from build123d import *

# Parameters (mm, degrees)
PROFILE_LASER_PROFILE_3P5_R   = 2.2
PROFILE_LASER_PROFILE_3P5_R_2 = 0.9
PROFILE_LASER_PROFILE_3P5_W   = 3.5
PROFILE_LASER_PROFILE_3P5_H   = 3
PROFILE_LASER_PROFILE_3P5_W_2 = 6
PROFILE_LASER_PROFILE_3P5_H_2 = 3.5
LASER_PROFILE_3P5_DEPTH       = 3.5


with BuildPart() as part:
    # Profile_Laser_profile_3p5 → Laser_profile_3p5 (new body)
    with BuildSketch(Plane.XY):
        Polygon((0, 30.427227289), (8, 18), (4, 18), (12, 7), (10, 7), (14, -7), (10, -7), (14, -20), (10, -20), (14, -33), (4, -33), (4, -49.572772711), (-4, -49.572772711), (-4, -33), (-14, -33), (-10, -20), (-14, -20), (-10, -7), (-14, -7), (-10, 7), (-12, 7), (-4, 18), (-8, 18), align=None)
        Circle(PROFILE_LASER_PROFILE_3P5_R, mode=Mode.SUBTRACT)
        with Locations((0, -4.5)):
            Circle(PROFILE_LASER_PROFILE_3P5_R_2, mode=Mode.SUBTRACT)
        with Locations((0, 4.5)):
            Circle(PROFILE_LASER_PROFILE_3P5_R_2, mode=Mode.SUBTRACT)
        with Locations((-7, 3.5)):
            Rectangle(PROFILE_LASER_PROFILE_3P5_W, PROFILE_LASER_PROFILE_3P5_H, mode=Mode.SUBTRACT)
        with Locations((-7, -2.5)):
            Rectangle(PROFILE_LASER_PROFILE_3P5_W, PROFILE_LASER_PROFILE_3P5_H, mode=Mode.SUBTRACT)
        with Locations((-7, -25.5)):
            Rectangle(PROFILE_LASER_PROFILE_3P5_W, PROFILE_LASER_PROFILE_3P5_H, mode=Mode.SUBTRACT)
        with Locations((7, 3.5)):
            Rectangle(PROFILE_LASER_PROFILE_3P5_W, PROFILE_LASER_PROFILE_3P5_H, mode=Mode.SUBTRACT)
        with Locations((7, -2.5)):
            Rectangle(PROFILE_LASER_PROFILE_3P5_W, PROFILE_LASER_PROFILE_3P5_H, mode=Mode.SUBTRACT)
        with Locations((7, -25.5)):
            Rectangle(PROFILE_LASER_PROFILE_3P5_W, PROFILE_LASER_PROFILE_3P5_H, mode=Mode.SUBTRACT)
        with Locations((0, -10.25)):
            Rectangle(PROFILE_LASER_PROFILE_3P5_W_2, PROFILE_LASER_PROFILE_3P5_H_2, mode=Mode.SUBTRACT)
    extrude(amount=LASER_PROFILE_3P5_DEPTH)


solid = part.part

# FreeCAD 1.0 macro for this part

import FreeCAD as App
import Part
import Sketcher
Q = App.Units.Quantity


def add_polygon(sketch, points):
    """Adds a closed chain of lines whose ends are joined by coincident constraints."""
    first, n = sketch.GeometryCount, len(points)
    for a, b in zip(points, points[1:] + points[:1]):
        sketch.addGeometry(Part.LineSegment(App.Vector(*a, 0), App.Vector(*b, 0)), False)
    for i in range(n):
        sketch.addConstraint(Sketcher.Constraint("Coincident", first + i, 2, first + (i + 1) % n, 1))

doc = App.newDocument("Part")
body = doc.addObject("PartDesign::Body", "Body")

# Sketch on XY plane
sketch1 = doc.addObject("Sketcher::SketchObject", "Sketch")
body.addObject(sketch1)
sketch1.AttachmentSupport = (doc.XY_Plane, [""])
sketch1.MapMode = "FlatFace"
add_polygon(sketch1, [(8, 18), (0, 30.4), (-8, 18), (-4, 18), (-12, 7), (-10, 7), (-14, -7), (-10, -7), (-14, -20), (-10, -20), (-14, -33), (-4, -33), (-4, -49.6), (4, -49.6), (4, -33), (14, -33), (10, -20), (14, -20), (10, -7), (14, -7), (10, 7), (12, 7), (4, 18)])  # lines 0-22
add_polygon(sketch1, [(5.2, -27), (5.2, -24), (8.8, -24), (8.8, -27)])  # lines 23-26
add_polygon(sketch1, [(-8.8, -27), (-8.8, -24), (-5.2, -24), (-5.2, -27)])  # lines 27-30
add_polygon(sketch1, [(5.2, -4), (5.2, -1), (8.8, -1), (8.8, -4)])  # lines 31-34
add_polygon(sketch1, [(5.2, 2), (5.2, 5), (8.8, 5), (8.8, 2)])  # lines 35-38
add_polygon(sketch1, [(-3, -12), (-3, -8.5), (3, -8.5), (3, -12)])  # lines 39-42
sketch1.addGeometry(Part.Circle(App.Vector(0, -4.5, 0), App.Vector(0, 0, 1), 0.9), False)  # 43
sketch1.addGeometry(Part.Circle(App.Vector(0, 0, 0), App.Vector(0, 0, 1), 2.2), False)  # 44
sketch1.addGeometry(Part.Circle(App.Vector(0, 4.5, 0), App.Vector(0, 0, 1), 0.9), False)  # 45
add_polygon(sketch1, [(-8.8, -4), (-8.8, -1), (-5.2, -1), (-5.2, -4)])  # lines 46-49
add_polygon(sketch1, [(-8.8, 2), (-8.8, 5), (-5.2, 5), (-5.2, 2)])  # lines 50-53
sketch1.addConstraint([
    Sketcher.Constraint("Horizontal", 2),
    Sketcher.Constraint("Horizontal", 4),
    Sketcher.Constraint("Horizontal", 6),
    Sketcher.Constraint("Horizontal", 8),
    Sketcher.Constraint("Horizontal", 10),
    Sketcher.Constraint("Vertical", 11),
    Sketcher.Constraint("Horizontal", 12),
    Sketcher.Constraint("Vertical", 13),
    Sketcher.Constraint("Horizontal", 14),
    Sketcher.Constraint("Horizontal", 16),
    Sketcher.Constraint("Horizontal", 18),
    Sketcher.Constraint("Horizontal", 20),
    Sketcher.Constraint("Horizontal", 22),
    Sketcher.Constraint("Vertical", 23),
    Sketcher.Constraint("Horizontal", 24),
    Sketcher.Constraint("Vertical", 25),
    Sketcher.Constraint("Horizontal", 26),
    Sketcher.Constraint("Vertical", 27),
    Sketcher.Constraint("Horizontal", 28),
    Sketcher.Constraint("Vertical", 29),
    Sketcher.Constraint("Horizontal", 30),
    Sketcher.Constraint("Vertical", 31),
    Sketcher.Constraint("Horizontal", 32),
    Sketcher.Constraint("Vertical", 33),
    Sketcher.Constraint("Horizontal", 34),
    Sketcher.Constraint("Vertical", 35),
    Sketcher.Constraint("Horizontal", 36),
    Sketcher.Constraint("Vertical", 37),
    Sketcher.Constraint("Horizontal", 38),
    Sketcher.Constraint("Vertical", 39),
    Sketcher.Constraint("Horizontal", 40),
    Sketcher.Constraint("Vertical", 41),
    Sketcher.Constraint("Horizontal", 42),
    Sketcher.Constraint("Vertical", 46),
    Sketcher.Constraint("Horizontal", 47),
    Sketcher.Constraint("Vertical", 48),
    Sketcher.Constraint("Horizontal", 49),
    Sketcher.Constraint("Vertical", 50),
    Sketcher.Constraint("Horizontal", 51),
    Sketcher.Constraint("Vertical", 52),
    Sketcher.Constraint("Horizontal", 53),
    Sketcher.Constraint("Coincident", 44, 3, -1, 1),
    Sketcher.Constraint("Equal", 43, 45),
    Sketcher.Constraint("Symmetric", 43, 3, 45, 3, -1, 1),
    Sketcher.Constraint("Symmetric", 4, 2, 17, 2, -1, 1),
    Sketcher.Constraint("Symmetric", 6, 2, 19, 2, -1, 1),
    Sketcher.Constraint("Symmetric", 10, 2, 13, 2, -2),
    Sketcher.Constraint("Symmetric", 8, 2, 15, 2, -2),
    Sketcher.Constraint("Symmetric", 6, 2, 17, 2, -2),
    Sketcher.Constraint("Symmetric", 2, 2, 21, 2, -2),
    Sketcher.Constraint("Symmetric", 24, 2, 27, 2, -2),
    Sketcher.Constraint("Symmetric", 26, 2, 29, 2, -2),
    Sketcher.Constraint("Symmetric", 32, 2, 46, 2, -2),
    Sketcher.Constraint("Symmetric", 34, 2, 48, 2, -2),
    Sketcher.Constraint("Symmetric", 36, 2, 50, 2, -2),
    Sketcher.Constraint("Symmetric", 38, 2, 52, 2, -2),
    Sketcher.Constraint("PointOnObject", 43, 3, -2),
    Sketcher.Constraint("PointOnObject", 0, 2, -2),
    Sketcher.Constraint("Parallel", 7, 9),
    Sketcher.Constraint("Parallel", 15, 17),
    Sketcher.Constraint("Vertical", 5, 2, 7, 2),
    Sketcher.Constraint("Vertical", 6, 2, 8, 2),
    Sketcher.Constraint("Vertical", 7, 2, 9, 2),
    Sketcher.Constraint("Vertical", 2, 2, 10, 2),
    Sketcher.Constraint("Vertical", 16, 2, 18, 2),
    Sketcher.Constraint("Vertical", 26, 2, 31, 2),
    Sketcher.Constraint("Vertical", 25, 2, 32, 2),
    Sketcher.Constraint("Vertical", 34, 2, 35, 2),
    Sketcher.Constraint("Vertical", 33, 2, 36, 2),
    Sketcher.Constraint("Equal", 2, 6),
    Sketcher.Constraint("Equal", 10, 14),
    Sketcher.Constraint("Equal", 4, 20),
    Sketcher.Constraint("Equal", 18, 22),
    Sketcher.Constraint("Equal", 29, 31),
    Sketcher.Constraint("Equal", 33, 35),
    Sketcher.Constraint("Equal", 53, 39),
    Sketcher.Constraint("Equal", 3, 7),
    Sketcher.Constraint("Diameter", 43, Q("1.8 mm")),
    Sketcher.Constraint("Diameter", 44, Q("4.4 mm")),
    Sketcher.Constraint("DistanceX", 2, 1, 2, 2, Q("4 mm")),
    Sketcher.Constraint("DistanceX", 4, 1, 4, 2, Q("2 mm")),
    Sketcher.Constraint("DistanceX", 10, 1, 10, 2, Q("10 mm")),
    Sketcher.Constraint("DistanceX", 12, 1, 12, 2, Q("8 mm")),
    Sketcher.Constraint("DistanceX", 40, 1, 40, 2, Q("6 mm")),
    Sketcher.Constraint("DistanceY", 23, 1, 23, 2, Q("3 mm")),
    Sketcher.Constraint("DistanceX", 24, 1, 24, 2, Q("3.5 mm")),
    Sketcher.Constraint("DistanceY", -1, 1, 1, 2, Q("18 mm")),
    Sketcher.Constraint("DistanceY", -1, 1, 3, 2, Q("7 mm")),
    Sketcher.Constraint("DistanceY", 23, 2, -1, 1, Q("24 mm")),
    Sketcher.Constraint("DistanceY", 31, 2, -1, 1, Q("1 mm")),
    Sketcher.Constraint("DistanceY", -1, 1, 35, 2, Q("5 mm")),
    Sketcher.Constraint("DistanceX", 39, 2, -1, 1, Q("3 mm")),
    Sketcher.Constraint("DistanceY", 41, 2, -1, 1, Q("12 mm")),
    Sketcher.Constraint("DistanceY", 43, 3, 45, 3, Q("9 mm")),
    Sketcher.Constraint("DistanceX", 27, 2, 23, 2, Q("14 mm")),
    Sketcher.Constraint("Distance", 0, Q("14.77958 mm")),
    Sketcher.Constraint("DistanceY", 11, 2, 11, 1, Q("16.572773 mm")),
])
pad1 = doc.addObject("PartDesign::Pad", "Pad")
body.addObject(pad1)
pad1.Profile = sketch1
pad1.Length = 3.5

doc.recompute()
